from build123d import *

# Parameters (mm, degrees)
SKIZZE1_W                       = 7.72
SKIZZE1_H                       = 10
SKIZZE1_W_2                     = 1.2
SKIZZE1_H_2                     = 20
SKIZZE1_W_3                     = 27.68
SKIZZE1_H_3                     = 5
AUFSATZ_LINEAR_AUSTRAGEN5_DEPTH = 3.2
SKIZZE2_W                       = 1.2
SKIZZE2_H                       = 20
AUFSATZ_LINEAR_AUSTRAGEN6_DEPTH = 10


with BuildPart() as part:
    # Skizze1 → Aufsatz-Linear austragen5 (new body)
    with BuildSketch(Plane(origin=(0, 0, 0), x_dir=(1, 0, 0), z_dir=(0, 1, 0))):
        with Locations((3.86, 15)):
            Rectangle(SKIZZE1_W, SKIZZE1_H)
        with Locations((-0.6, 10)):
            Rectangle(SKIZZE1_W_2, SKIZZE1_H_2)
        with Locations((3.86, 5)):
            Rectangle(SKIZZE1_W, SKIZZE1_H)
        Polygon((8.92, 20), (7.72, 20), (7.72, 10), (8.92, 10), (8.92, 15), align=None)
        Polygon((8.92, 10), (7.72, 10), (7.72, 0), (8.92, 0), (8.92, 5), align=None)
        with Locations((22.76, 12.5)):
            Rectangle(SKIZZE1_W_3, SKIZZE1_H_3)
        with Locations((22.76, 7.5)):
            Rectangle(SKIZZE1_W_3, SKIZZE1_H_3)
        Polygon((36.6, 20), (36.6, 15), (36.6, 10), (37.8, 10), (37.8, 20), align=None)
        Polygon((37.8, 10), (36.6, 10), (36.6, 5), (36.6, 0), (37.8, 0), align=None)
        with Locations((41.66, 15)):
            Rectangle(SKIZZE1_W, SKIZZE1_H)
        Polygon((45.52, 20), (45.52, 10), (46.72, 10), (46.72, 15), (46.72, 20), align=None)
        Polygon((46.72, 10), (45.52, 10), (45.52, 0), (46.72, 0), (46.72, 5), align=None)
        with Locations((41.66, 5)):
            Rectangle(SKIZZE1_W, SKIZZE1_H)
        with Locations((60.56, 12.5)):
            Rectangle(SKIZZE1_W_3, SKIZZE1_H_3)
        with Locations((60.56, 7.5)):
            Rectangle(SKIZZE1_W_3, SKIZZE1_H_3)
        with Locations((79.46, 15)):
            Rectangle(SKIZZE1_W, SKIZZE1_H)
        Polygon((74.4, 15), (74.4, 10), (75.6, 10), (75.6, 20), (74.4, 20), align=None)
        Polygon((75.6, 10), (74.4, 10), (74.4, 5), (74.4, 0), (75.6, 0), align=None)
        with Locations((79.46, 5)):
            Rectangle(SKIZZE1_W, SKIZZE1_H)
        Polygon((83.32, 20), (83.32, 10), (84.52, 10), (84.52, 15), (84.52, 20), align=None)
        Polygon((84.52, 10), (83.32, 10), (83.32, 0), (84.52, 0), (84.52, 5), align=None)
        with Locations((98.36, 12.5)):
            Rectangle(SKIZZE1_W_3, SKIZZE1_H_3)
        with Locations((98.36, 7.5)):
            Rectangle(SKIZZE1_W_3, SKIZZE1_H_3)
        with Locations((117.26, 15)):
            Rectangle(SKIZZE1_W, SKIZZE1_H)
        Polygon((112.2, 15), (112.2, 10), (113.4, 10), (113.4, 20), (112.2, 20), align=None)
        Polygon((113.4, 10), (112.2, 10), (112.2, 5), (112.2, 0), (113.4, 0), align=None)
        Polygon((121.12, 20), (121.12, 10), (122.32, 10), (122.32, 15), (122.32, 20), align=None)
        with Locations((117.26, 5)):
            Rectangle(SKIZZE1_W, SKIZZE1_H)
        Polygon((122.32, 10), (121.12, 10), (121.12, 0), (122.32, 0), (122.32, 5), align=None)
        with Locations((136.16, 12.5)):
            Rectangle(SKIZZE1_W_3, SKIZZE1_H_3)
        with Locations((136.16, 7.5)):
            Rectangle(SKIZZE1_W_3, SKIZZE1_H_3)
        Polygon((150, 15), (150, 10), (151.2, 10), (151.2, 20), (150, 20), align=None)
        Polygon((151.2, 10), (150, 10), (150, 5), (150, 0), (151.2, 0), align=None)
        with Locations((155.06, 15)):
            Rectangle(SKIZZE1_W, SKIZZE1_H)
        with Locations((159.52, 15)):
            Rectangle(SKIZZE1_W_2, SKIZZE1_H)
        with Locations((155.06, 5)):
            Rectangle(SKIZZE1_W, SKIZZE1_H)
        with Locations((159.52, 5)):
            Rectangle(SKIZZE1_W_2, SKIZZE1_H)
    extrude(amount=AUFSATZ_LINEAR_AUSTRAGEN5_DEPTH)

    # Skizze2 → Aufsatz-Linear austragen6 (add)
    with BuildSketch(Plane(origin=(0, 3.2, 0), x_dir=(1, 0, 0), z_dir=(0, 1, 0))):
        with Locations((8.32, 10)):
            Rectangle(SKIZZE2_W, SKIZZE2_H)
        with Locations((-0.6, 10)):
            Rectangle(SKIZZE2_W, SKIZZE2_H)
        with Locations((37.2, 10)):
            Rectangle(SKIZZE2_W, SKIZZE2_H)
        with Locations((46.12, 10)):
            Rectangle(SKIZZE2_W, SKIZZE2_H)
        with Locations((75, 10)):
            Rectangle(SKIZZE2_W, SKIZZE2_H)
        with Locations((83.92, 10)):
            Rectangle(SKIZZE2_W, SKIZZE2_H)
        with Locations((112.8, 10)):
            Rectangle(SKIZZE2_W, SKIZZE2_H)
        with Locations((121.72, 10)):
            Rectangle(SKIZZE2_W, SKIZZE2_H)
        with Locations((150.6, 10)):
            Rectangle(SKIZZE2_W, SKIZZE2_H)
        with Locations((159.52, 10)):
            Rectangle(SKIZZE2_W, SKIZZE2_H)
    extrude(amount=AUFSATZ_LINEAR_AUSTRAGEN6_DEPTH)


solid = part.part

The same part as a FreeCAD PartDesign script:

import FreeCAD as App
import Part
import Sketcher

V = App.Vector


def add_polygon(sketch, points):
    """Adds a closed chain of lines whose ends are joined by coincident constraints."""
    first, n = sketch.GeometryCount, len(points)
    for a, b in zip(points, points[1:] + points[:1]):
        sketch.addGeometry(Part.LineSegment(App.Vector(*a, 0), App.Vector(*b, 0)), False)
    for i in range(n):
        sketch.addConstraint(Sketcher.Constraint("Coincident", first + i, 2, first + (i + 1) % n, 1))

doc = App.newDocument("Part")
body = doc.addObject("PartDesign::Body", "Body")

sketch1 = body.newObject("Sketcher::SketchObject", "Sketch")
sketch1.AttachmentSupport = (doc.getObject("XZ_Plane"), [""])
sketch1.MapMode = "FlatFace"
add_polygon(sketch1, [(-1.2, -20), (-1.2, 0), (8.92, 0), (8.92, -5), (36.6, -5), (36.6, 0), (46.72, 0), (46.72, -5), (74.4, -5), (74.4, 0), (84.52, 0), (84.52, -5), (112.2, -5), (112.2, 0), (122.32, 0), (122.32, -5), (150, -5), (150, 0), (160.12, 0), (160.12, -20), (150, -20), (150, -15), (122.32, -15), (122.32, -20), (112.2, -20), (112.2, -15), (84.52, -15), (84.52, -20), (74.4, -20), (74.4, -15), (46.72, -15), (46.72, -20), (36.6, -20), (36.6, -15), (8.92, -15), (8.92, -20)])
sketch1.addConstraint([
    Sketcher.Constraint("Vertical", 0),
    Sketcher.Constraint("Horizontal", 1),
    Sketcher.Constraint("Vertical", 2),
    Sketcher.Constraint("Horizontal", 3),
    Sketcher.Constraint("Vertical", 4),
    Sketcher.Constraint("Horizontal", 5),
    Sketcher.Constraint("Vertical", 6),
    Sketcher.Constraint("Horizontal", 7),
    Sketcher.Constraint("Vertical", 8),
    Sketcher.Constraint("Horizontal", 9),
    Sketcher.Constraint("Vertical", 10),
    Sketcher.Constraint("Horizontal", 11),
    Sketcher.Constraint("Vertical", 12),
    Sketcher.Constraint("Horizontal", 13),
    Sketcher.Constraint("Vertical", 14),
    Sketcher.Constraint("Horizontal", 15),
    Sketcher.Constraint("Vertical", 16),
    Sketcher.Constraint("Horizontal", 17),
    Sketcher.Constraint("Vertical", 18),
    Sketcher.Constraint("Horizontal", 19),
    Sketcher.Constraint("Vertical", 20),
    Sketcher.Constraint("Horizontal", 21),
    Sketcher.Constraint("Vertical", 22),
    Sketcher.Constraint("Horizontal", 23),
    Sketcher.Constraint("Vertical", 24),
    Sketcher.Constraint("Horizontal", 25),
    Sketcher.Constraint("Vertical", 26),
    Sketcher.Constraint("Horizontal", 27),
    Sketcher.Constraint("Vertical", 28),
    Sketcher.Constraint("Horizontal", 29),
    Sketcher.Constraint("Vertical", 30),
    Sketcher.Constraint("Horizontal", 31),
    Sketcher.Constraint("Vertical", 32),
    Sketcher.Constraint("Horizontal", 33),
    Sketcher.Constraint("Vertical", 34),
    Sketcher.Constraint("Horizontal", 35),
    Sketcher.Constraint("PointOnObject", 0, 2, -1),
    Sketcher.Constraint("PointOnObject", 4, 2, -1),
    Sketcher.Constraint("PointOnObject", 8, 2, -1),
    Sketcher.Constraint("PointOnObject", 12, 2, -1),
    Sketcher.Constraint("PointOnObject", 16, 2, -1),
    Sketcher.Constraint("Horizontal", 3, 2, 6, 2),
    Sketcher.Constraint("Horizontal", 7, 2, 10, 2),
    Sketcher.Constraint("Horizontal", 11, 2, 14, 2),
    Sketcher.Constraint("Horizontal", 19, 2, 22, 2),
    Sketcher.Constraint("Horizontal", 21, 2, 24, 2),
    Sketcher.Constraint("Horizontal", 23, 2, 26, 2),
    Sketcher.Constraint("Horizontal", 25, 2, 28, 2),
    Sketcher.Constraint("Horizontal", 27, 2, 30, 2),
    Sketcher.Constraint("Horizontal", 29, 2, 32, 2),
    Sketcher.Constraint("Horizontal", 31, 2, 34, 2),
    Sketcher.Constraint("Vertical", 16, 2, 19, 2),
    Sketcher.Constraint("Vertical", 14, 2, 21, 2),
    Sketcher.Constraint("Vertical", 12, 2, 23, 2),
    Sketcher.Constraint("Vertical", 10, 2, 25, 2),
    Sketcher.Constraint("Vertical", 8, 2, 27, 2),
    Sketcher.Constraint("Vertical", 6, 2, 29, 2),
    Sketcher.Constraint("Vertical", 4, 2, 31, 2),
    Sketcher.Constraint("Vertical", 2, 2, 33, 2),
    Sketcher.Constraint("Equal", 1, 5),
    Sketcher.Constraint("Equal", 3, 7),
    Sketcher.Constraint("Equal", 5, 9),
    Sketcher.Constraint("Equal", 7, 11),
    Sketcher.Constraint("Equal", 9, 13),
    Sketcher.Constraint("Equal", 11, 15),
    Sketcher.Constraint("Equal", 13, 17),
    Sketcher.Constraint("Equal", 16, 20),
    Sketcher.Constraint("DistanceY", 0, 1, 0, 2, 20.0),
    Sketcher.Constraint("DistanceY", 2, 2, 2, 1, 5.0),
    Sketcher.Constraint("DistanceX", -1, 1, 15, 2, 150.0),
    Sketcher.Constraint("DistanceX", 1, 1, 1, 2, 10.12),
    Sketcher.Constraint("DistanceX", 3, 1, 3, 2, 27.68),
])
pad1 = body.newObject("PartDesign::Pad", "Pad")
pad1.Profile = sketch1
pad1.Length = 3.2
pad1.Reversed = True

sketch2 = body.newObject("Sketcher::SketchObject", "Sketch001")
sketch2.AttachmentSupport = (doc.getObject("XZ_Plane"), [""])
sketch2.MapMode = "FlatFace"
sketch2.AttachmentOffset = App.Placement(V(0, 0, -3.2), App.Rotation())
add_polygon(sketch2, [(7.72, -20), (7.72, 0), (8.92, 0), (8.92, -20)])
add_polygon(sketch2, [(-1.2, -20), (-1.2, 0), (0, 0), (0, -20)])
add_polygon(sketch2, [(36.6, -20), (36.6, 0), (37.8, 0), (37.8, -20)])
add_polygon(sketch2, [(45.52, -20), (45.52, 0), (46.72, 0), (46.72, -20)])
add_polygon(sketch2, [(74.4, -20), (74.4, 0), (75.6, 0), (75.6, -20)])
add_polygon(sketch2, [(83.32, -20), (83.32, 0), (84.52, 0), (84.52, -20)])
add_polygon(sketch2, [(112.2, -20), (112.2, 0), (113.4, 0), (113.4, -20)])
add_polygon(sketch2, [(121.12, -20), (121.12, 0), (122.32, 0), (122.32, -20)])
add_polygon(sketch2, [(150, -20), (150, 0), (151.2, 0), (151.2, -20)])
add_polygon(sketch2, [(158.92, -20), (158.92, 0), (160.12, 0), (160.12, -20)])
sketch2.addConstraint([
    Sketcher.Constraint("Vertical", 0),
    Sketcher.Constraint("Horizontal", 1),
    Sketcher.Constraint("Vertical", 2),
    Sketcher.Constraint("Horizontal", 3),
    Sketcher.Constraint("Vertical", 4),
    Sketcher.Constraint("Horizontal", 5),
    Sketcher.Constraint("Vertical", 6),
    Sketcher.Constraint("Horizontal", 7),
    Sketcher.Constraint("Vertical", 8),
    Sketcher.Constraint("Horizontal", 9),
    Sketcher.Constraint("Vertical", 10),
    Sketcher.Constraint("Horizontal", 11),
    Sketcher.Constraint("Vertical", 12),
    Sketcher.Constraint("Horizontal", 13),
    Sketcher.Constraint("Vertical", 14),
    Sketcher.Constraint("Horizontal", 15),
    Sketcher.Constraint("Vertical", 16),
    Sketcher.Constraint("Horizontal", 17),
    Sketcher.Constraint("Vertical", 18),
    Sketcher.Constraint("Horizontal", 19),
    Sketcher.Constraint("Vertical", 20),
    Sketcher.Constraint("Horizontal", 21),
    Sketcher.Constraint("Vertical", 22),
    Sketcher.Constraint("Horizontal", 23),
    Sketcher.Constraint("Vertical", 24),
    Sketcher.Constraint("Horizontal", 25),
    Sketcher.Constraint("Vertical", 26),
    Sketcher.Constraint("Horizontal", 27),
    Sketcher.Constraint("Vertical", 28),
    Sketcher.Constraint("Horizontal", 29),
    Sketcher.Constraint("Vertical", 30),
    Sketcher.Constraint("Horizontal", 31),
    Sketcher.Constraint("Vertical", 32),
    Sketcher.Constraint("Horizontal", 33),
    Sketcher.Constraint("Vertical", 34),
    Sketcher.Constraint("Horizontal", 35),
    Sketcher.Constraint("Vertical", 36),
    Sketcher.Constraint("Horizontal", 37),
    Sketcher.Constraint("Vertical", 38),
    Sketcher.Constraint("Horizontal", 39),
    Sketcher.Constraint("Coincident", 5, 2, -1, 1),
    Sketcher.Constraint("PointOnObject", 0, 2, -1),
    Sketcher.Constraint("PointOnObject", 8, 2, -1),
    Sketcher.Constraint("PointOnObject", 12, 2, -1),
    Sketcher.Constraint("PointOnObject", 16, 2, -1),
    Sketcher.Constraint("PointOnObject", 20, 2, -1),
    Sketcher.Constraint("PointOnObject", 24, 2, -1),
    Sketcher.Constraint("PointOnObject", 28, 2, -1),
    Sketcher.Constraint("PointOnObject", 32, 2, -1),
    Sketcher.Constraint("PointOnObject", 36, 2, -1),
    Sketcher.Constraint("Horizontal", 3, 2, 6, 2),
    Sketcher.Constraint("Horizontal", 7, 2, 10, 2),
    Sketcher.Constraint("Horizontal", 11, 2, 14, 2),
    Sketcher.Constraint("Horizontal", 15, 2, 18, 2),
    Sketcher.Constraint("Horizontal", 19, 2, 22, 2),
    Sketcher.Constraint("Horizontal", 23, 2, 26, 2),
    Sketcher.Constraint("Horizontal", 27, 2, 30, 2),
    Sketcher.Constraint("Horizontal", 31, 2, 34, 2),
    Sketcher.Constraint("Horizontal", 35, 2, 38, 2),
    Sketcher.Constraint("Equal", 3, 5),
    Sketcher.Constraint("Equal", 7, 9),
    Sketcher.Constraint("Equal", 11, 13),
    Sketcher.Constraint("Equal", 15, 17),
    Sketcher.Constraint("Equal", 19, 21),
    Sketcher.Constraint("Equal", 23, 25),
    Sketcher.Constraint("Equal", 27, 29),
    Sketcher.Constraint("Equal", 31, 33),
    Sketcher.Constraint("Equal", 35, 37),
    Sketcher.Constraint("DistanceY", 0, 1, 0, 2, 20.0),
    Sketcher.Constraint("DistanceX", 1, 1, 1, 2, 1.2),
    Sketcher.Constraint("DistanceX", -1, 1, 32, 2, 150.0),
    Sketcher.Constraint("DistanceX", -1, 1, 8, 2, 36.6),
    Sketcher.Constraint("DistanceX", -1, 1, 16, 2, 74.4),
    Sketcher.Constraint("DistanceX", -1, 1, 24, 2, 112.2),
    Sketcher.Constraint("DistanceX", 1, 2, 12, 2, 36.6),
    Sketcher.Constraint("DistanceX", 13, 2, 20, 2, 36.6),
    Sketcher.Constraint("DistanceX", 21, 2, 28, 2, 36.6),
    Sketcher.Constraint("DistanceX", 29, 2, 36, 2, 36.6),
    Sketcher.Constraint("DistanceX", -1, 1, 0, 2, 7.72),
])
pad2 = body.newObject("PartDesign::Pad", "Pad001")
pad2.Profile = sketch2
pad2.Length = 10
pad2.Reversed = True

doc.recompute()
